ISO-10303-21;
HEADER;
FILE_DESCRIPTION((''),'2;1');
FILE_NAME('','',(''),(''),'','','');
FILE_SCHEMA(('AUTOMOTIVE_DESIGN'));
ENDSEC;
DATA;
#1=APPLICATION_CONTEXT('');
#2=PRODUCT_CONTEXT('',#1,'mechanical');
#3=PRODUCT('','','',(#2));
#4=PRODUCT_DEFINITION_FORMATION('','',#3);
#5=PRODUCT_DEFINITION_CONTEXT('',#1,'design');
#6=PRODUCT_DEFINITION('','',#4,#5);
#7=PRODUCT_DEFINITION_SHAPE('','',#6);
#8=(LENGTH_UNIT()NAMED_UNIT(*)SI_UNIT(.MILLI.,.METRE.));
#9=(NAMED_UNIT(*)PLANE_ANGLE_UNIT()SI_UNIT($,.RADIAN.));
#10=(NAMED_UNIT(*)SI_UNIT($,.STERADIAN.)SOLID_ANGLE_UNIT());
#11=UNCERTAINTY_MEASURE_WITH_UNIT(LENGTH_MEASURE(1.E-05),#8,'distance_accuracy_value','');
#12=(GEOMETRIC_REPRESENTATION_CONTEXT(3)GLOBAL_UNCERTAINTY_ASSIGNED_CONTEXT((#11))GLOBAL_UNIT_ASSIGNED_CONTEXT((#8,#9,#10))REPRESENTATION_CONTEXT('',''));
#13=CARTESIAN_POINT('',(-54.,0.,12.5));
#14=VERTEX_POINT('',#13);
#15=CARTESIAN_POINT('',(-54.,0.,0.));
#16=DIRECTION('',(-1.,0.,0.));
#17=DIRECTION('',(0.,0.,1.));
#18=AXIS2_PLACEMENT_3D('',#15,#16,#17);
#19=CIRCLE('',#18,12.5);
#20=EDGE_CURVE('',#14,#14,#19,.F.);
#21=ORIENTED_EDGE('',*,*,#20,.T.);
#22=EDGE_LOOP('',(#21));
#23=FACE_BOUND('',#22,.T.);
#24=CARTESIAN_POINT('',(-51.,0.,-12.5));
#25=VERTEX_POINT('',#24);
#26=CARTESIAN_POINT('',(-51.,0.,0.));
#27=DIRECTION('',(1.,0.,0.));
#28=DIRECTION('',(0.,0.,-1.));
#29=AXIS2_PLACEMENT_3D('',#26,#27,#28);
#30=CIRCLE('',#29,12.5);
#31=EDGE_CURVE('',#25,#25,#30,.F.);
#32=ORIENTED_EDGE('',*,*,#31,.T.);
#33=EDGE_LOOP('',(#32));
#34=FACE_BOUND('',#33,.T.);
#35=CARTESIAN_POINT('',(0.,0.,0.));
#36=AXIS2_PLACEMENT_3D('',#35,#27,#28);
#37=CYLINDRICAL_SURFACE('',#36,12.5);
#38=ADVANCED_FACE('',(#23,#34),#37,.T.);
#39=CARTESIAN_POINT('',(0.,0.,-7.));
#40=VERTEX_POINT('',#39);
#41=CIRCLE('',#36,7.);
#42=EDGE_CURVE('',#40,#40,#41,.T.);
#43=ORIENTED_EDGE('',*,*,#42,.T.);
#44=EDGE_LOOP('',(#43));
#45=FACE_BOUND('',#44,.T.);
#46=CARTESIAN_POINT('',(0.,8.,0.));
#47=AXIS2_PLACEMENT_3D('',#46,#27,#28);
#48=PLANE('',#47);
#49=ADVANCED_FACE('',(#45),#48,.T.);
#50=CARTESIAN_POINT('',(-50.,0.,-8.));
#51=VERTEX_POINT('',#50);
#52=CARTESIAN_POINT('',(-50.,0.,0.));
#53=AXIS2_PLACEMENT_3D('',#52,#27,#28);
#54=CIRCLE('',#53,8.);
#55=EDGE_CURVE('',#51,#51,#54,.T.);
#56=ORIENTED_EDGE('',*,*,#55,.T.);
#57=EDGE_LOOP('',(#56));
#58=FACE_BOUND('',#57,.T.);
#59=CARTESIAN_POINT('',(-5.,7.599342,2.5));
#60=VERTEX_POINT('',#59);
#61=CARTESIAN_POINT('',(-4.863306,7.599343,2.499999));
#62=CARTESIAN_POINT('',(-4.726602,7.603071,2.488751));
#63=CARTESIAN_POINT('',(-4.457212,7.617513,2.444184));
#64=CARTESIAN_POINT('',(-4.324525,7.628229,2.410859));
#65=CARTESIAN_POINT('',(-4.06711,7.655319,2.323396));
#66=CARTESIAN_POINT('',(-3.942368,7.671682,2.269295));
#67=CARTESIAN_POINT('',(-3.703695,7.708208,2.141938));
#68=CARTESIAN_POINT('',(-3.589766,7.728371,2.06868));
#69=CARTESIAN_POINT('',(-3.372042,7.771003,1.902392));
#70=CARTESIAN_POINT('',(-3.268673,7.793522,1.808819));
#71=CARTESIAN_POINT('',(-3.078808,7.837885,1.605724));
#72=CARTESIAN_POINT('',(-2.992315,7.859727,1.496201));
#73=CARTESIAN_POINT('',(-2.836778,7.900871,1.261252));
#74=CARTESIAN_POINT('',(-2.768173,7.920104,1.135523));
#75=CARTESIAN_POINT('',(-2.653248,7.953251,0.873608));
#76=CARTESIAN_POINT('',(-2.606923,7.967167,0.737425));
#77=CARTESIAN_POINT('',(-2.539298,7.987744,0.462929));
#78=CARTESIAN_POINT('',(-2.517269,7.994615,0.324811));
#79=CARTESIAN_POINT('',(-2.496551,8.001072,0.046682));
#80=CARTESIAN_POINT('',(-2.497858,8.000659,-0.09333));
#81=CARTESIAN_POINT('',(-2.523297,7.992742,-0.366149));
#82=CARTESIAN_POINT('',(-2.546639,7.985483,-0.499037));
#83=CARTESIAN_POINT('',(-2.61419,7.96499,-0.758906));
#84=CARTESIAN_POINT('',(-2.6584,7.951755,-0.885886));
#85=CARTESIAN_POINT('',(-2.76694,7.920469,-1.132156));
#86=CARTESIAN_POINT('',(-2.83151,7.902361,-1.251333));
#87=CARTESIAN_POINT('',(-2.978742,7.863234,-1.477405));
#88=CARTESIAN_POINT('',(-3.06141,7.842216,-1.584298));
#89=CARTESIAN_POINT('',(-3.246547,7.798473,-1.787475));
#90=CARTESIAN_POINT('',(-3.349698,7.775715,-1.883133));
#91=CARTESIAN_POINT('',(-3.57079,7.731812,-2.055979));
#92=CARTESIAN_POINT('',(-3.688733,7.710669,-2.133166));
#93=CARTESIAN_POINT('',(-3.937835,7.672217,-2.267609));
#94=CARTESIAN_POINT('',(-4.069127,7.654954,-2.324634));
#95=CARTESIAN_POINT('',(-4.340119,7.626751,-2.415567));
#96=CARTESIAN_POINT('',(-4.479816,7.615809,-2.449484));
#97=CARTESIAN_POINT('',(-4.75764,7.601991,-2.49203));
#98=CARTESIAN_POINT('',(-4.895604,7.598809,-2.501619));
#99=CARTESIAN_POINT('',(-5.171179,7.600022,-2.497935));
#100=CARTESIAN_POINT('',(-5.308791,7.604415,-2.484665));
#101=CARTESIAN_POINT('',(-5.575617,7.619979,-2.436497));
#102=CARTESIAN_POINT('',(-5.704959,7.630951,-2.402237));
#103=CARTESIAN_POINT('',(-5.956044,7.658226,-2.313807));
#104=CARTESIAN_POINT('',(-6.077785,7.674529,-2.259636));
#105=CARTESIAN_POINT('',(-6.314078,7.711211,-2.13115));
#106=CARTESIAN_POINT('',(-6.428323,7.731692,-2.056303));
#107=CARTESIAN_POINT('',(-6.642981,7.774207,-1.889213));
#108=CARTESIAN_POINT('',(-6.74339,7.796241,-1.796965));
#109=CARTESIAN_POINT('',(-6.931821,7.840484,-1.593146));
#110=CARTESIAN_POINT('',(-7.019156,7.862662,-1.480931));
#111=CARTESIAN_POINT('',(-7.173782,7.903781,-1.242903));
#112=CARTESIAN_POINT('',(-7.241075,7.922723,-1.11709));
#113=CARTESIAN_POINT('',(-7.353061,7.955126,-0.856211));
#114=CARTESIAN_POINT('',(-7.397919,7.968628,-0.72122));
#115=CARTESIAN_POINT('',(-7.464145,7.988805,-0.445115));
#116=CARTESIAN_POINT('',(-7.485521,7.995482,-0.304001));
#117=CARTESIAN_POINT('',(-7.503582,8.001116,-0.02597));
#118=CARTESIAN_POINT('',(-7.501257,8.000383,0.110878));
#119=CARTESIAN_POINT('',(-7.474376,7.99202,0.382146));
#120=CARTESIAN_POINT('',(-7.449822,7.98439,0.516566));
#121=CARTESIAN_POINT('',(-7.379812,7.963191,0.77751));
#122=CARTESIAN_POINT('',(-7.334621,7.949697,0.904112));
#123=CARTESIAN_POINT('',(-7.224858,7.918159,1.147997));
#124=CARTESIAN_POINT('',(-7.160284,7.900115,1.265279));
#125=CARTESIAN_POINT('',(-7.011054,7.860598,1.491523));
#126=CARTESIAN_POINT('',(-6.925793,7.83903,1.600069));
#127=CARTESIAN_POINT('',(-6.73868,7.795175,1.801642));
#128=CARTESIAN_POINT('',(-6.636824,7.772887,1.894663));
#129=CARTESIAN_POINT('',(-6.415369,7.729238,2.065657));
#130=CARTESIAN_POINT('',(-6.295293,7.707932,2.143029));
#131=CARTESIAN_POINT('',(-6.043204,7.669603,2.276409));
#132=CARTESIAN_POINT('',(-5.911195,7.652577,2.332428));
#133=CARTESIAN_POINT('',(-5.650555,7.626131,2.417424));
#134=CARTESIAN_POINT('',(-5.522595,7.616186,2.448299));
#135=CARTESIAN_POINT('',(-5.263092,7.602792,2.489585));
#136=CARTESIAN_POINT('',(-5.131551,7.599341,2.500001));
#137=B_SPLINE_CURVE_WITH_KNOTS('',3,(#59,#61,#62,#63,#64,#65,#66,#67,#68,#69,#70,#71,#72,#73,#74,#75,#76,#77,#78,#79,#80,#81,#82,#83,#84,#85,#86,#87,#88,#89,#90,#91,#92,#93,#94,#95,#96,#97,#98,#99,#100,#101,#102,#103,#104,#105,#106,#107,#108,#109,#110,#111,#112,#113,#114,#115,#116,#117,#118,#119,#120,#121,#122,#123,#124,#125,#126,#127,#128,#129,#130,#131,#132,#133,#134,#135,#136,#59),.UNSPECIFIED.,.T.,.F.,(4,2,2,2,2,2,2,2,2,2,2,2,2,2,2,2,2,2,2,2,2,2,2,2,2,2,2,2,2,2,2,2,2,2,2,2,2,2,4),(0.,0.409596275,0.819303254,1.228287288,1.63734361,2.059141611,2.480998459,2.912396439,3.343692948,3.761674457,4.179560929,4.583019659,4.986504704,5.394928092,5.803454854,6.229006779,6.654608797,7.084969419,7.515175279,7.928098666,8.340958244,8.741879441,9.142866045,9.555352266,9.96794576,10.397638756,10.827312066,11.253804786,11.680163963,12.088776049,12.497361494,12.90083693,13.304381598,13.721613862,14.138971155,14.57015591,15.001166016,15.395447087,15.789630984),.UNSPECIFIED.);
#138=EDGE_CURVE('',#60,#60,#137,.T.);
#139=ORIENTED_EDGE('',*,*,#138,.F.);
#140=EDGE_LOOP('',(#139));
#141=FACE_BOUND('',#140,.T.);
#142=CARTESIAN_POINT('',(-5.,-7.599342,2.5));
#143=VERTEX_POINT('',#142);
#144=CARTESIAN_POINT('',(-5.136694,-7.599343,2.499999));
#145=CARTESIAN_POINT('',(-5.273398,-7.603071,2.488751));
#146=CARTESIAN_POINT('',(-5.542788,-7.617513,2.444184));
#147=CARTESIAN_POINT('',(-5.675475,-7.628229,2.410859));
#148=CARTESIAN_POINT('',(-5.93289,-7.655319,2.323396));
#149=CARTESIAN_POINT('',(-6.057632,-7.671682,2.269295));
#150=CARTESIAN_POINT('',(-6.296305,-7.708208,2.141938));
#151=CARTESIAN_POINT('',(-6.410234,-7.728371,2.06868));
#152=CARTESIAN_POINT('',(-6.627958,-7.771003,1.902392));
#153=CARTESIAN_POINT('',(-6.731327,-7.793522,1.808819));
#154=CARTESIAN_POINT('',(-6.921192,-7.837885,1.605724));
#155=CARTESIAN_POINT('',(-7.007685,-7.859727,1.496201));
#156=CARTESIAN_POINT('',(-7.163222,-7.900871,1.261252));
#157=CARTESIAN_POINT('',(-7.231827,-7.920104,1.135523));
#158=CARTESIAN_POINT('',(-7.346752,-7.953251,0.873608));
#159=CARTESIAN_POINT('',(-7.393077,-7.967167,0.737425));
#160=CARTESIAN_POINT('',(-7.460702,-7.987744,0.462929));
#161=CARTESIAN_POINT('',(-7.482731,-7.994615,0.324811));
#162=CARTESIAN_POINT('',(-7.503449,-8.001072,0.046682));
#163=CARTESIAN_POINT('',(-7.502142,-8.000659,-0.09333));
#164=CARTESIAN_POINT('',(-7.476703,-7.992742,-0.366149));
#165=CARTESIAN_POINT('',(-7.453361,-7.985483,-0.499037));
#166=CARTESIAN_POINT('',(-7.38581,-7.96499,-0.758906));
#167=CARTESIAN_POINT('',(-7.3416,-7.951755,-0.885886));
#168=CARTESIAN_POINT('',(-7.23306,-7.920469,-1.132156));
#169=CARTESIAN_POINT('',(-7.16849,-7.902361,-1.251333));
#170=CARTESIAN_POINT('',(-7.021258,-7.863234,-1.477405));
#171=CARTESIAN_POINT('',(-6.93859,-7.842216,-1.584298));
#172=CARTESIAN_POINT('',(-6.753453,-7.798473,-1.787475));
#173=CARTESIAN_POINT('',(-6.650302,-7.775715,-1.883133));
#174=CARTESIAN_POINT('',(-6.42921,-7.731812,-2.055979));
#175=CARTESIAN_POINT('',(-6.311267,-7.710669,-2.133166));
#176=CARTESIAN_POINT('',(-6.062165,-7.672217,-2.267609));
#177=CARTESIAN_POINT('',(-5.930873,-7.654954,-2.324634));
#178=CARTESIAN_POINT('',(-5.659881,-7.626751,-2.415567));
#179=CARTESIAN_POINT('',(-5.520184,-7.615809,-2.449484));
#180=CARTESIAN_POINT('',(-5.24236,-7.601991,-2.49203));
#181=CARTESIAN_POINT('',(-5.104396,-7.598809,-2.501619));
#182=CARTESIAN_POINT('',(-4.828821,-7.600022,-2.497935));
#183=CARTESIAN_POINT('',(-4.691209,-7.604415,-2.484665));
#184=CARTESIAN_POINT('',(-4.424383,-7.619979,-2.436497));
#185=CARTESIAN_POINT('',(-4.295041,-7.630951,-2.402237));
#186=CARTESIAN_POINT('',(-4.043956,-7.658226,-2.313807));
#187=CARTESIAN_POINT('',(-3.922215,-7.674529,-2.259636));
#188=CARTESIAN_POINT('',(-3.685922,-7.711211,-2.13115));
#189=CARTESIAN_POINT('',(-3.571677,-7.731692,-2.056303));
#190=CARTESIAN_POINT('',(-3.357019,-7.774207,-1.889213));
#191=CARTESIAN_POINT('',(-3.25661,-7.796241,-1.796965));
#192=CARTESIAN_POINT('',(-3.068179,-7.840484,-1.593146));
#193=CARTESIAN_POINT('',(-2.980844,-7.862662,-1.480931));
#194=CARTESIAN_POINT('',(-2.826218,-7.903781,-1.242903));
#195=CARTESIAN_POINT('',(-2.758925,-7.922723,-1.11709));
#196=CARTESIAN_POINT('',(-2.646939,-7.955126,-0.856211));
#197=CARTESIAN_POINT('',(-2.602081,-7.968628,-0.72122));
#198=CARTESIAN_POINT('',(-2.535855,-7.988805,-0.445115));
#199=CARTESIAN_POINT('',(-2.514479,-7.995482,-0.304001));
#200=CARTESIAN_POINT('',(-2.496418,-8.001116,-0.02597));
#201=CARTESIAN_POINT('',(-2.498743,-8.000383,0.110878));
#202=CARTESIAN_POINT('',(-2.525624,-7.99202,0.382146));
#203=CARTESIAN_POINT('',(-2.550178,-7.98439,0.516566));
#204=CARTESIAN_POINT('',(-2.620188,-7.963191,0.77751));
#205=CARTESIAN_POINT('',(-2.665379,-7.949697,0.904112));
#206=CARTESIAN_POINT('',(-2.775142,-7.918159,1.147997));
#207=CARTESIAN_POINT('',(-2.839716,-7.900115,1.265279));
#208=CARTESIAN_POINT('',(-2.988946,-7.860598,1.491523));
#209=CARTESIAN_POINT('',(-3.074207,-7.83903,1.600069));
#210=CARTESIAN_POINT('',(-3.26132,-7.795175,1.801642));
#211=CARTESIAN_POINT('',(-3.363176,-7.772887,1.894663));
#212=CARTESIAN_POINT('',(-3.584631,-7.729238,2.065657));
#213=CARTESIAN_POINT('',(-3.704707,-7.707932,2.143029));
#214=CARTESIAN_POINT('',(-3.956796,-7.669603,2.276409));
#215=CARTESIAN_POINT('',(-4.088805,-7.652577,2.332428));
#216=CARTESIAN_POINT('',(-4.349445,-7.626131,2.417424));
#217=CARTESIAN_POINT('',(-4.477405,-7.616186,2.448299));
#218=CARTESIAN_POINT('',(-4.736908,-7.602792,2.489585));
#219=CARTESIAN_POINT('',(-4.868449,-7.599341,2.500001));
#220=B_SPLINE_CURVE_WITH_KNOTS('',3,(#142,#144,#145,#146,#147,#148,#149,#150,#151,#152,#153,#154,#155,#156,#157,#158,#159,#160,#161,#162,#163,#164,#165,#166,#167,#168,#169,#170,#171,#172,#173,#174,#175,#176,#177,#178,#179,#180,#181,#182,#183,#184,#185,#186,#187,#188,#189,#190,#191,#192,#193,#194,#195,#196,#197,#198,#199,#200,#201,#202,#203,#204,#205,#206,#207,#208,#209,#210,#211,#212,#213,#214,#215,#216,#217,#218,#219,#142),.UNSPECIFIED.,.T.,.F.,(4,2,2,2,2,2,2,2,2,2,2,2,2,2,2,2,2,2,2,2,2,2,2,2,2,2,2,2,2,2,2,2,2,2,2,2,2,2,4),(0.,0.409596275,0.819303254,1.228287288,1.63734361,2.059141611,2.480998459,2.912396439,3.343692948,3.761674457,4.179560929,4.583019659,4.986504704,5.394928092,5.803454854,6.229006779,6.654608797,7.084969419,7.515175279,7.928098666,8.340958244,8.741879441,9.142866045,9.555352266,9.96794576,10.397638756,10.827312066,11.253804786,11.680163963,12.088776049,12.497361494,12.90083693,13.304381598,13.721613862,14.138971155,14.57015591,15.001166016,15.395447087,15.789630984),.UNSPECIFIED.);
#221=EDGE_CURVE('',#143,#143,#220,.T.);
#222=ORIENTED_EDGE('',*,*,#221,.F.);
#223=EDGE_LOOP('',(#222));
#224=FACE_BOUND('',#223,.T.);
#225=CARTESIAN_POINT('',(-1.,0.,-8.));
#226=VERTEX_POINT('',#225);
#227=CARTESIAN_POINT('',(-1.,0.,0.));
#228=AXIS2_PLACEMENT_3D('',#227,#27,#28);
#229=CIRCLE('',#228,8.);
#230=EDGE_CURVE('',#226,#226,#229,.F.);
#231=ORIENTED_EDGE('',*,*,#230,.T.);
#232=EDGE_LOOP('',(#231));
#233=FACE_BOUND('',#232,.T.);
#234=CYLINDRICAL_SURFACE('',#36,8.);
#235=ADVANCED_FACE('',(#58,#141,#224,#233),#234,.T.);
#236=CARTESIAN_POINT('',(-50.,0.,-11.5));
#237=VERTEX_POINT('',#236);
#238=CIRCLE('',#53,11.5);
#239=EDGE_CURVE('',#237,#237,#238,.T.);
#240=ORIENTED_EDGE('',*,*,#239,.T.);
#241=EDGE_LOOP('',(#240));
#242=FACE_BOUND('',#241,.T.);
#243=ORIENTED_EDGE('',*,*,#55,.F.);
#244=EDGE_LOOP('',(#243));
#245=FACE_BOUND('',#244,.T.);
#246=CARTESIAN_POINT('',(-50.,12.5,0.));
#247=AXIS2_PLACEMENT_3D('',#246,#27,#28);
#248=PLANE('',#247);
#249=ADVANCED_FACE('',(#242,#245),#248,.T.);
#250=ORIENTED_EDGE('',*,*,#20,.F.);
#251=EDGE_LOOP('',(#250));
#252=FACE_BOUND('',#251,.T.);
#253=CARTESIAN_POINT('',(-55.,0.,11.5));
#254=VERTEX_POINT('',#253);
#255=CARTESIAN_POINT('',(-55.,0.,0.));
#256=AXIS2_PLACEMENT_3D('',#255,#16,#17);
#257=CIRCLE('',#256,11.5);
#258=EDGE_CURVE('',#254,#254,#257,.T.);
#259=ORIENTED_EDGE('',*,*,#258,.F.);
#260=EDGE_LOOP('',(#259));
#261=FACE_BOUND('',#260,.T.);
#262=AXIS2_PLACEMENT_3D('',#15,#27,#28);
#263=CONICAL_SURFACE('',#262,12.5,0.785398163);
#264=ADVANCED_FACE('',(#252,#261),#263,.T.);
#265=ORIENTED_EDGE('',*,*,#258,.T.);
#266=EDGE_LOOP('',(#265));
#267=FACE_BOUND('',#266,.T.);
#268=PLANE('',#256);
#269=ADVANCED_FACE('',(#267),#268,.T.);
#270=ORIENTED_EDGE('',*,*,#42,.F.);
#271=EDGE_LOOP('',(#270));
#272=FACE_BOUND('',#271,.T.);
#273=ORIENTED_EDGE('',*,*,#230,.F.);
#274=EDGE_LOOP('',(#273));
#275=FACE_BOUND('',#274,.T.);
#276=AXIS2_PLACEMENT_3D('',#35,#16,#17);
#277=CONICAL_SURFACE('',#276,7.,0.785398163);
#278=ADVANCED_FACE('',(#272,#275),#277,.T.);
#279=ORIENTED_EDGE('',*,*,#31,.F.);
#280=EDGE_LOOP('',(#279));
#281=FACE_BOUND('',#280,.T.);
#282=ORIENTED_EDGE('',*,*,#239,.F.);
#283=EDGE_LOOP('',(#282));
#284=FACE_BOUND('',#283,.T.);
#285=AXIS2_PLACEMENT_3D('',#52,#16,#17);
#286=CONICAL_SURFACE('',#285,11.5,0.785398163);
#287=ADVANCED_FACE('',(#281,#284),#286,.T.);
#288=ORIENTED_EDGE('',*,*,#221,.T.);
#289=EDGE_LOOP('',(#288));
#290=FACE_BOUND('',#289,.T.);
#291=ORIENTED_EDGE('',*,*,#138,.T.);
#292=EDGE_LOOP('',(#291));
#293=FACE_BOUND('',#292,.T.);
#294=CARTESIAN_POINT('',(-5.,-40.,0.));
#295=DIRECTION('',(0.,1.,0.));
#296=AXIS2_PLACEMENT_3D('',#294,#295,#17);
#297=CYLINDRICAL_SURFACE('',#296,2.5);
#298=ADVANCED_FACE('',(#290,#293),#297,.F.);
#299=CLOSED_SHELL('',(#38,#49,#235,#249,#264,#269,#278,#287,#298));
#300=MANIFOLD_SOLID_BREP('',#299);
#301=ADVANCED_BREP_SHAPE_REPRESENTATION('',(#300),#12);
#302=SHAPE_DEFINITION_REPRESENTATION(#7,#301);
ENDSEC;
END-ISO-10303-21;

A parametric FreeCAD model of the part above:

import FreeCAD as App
import Part
import Sketcher
from FreeCAD import Vector


def edges_at(feature, points):
    """Names of the edges that pass closest to the given points."""
    edges = feature.Shape.Edges
    near = lambda p: min(range(len(edges)), key=lambda i: edges[i].distToShape(Part.Vertex(*p))[0])
    return sorted({f"Edge{near(p) + 1}" for p in points})


def add_polygon(sketch, points):
    """Adds a closed chain of lines whose ends are joined by coincident constraints."""
    first, n = sketch.GeometryCount, len(points)
    for a, b in zip(points, points[1:] + points[:1]):
        sketch.addGeometry(Part.LineSegment(App.Vector(*a, 0), App.Vector(*b, 0)), False)
    for i in range(n):
        sketch.addConstraint(Sketcher.Constraint("Coincident", first + i, 2, first + (i + 1) % n, 1))

doc = App.newDocument("Part")
body = doc.addObject("PartDesign::Body", "Body")

# Sketch on XY plane
sketch1 = doc.addObject("Sketcher::SketchObject", "Sketch")
body.addObject(sketch1)
sketch1.AttachmentSupport = (doc.XY_Plane, [""])
sketch1.MapMode = "FlatFace"
add_polygon(sketch1, [(-55, 12.5), (-55, 0), (0, 0), (0, 8), (-50, 8), (-50, 12.5)])  # lines 0-5
sketch1.addConstraint([
    Sketcher.Constraint("Vertical", 0),
    Sketcher.Constraint("Horizontal", 1),
    Sketcher.Constraint("Vertical", 2),
    Sketcher.Constraint("Horizontal", 3),
    Sketcher.Constraint("Vertical", 4),
    Sketcher.Constraint("Horizontal", 5),
    Sketcher.Constraint("Coincident", 1, 2, -1, 1),
    Sketcher.Constraint("DistanceX", 1, 1, 1, 2, 55.0),
    Sketcher.Constraint("DistanceX", 3, 2, 3, 1, 50.0),
    Sketcher.Constraint("DistanceY", 2, 1, 2, 2, 8.0),
    Sketcher.Constraint("DistanceY", 0, 2, 0, 1, 12.5),
])
revolution = doc.addObject("PartDesign::Revolution", "Revolution")
body.addObject(revolution)
revolution.Profile = sketch1
revolution.ReferenceAxis = (sketch1, ["H_Axis"])
revolution.Angle = 360
doc.recompute()

chamfer = doc.addObject("PartDesign::Chamfer", "Chamfer")
body.addObject(chamfer)
chamfer.Base = (revolution, edges_at(revolution, [(-50, 0, 12.5), (-55, 0, 12.5)]))
chamfer.Size = 1
doc.recompute()

chamfer2 = doc.addObject("PartDesign::Chamfer", "Chamfer001")
body.addObject(chamfer2)
chamfer2.Base = (chamfer, edges_at(chamfer, [(0, 0, 8)]))
chamfer2.Size = 1

# Sketch on XZ plane
sketch2 = doc.addObject("Sketcher::SketchObject", "Sketch001")
body.addObject(sketch2)
sketch2.AttachmentSupport = (doc.XZ_Plane, [""])
sketch2.MapMode = "FlatFace"
sketch2.addGeometry(Part.Circle(Vector(-5, 0, 0), Vector(0, 0, 1), 2.5), False)
sketch2.addConstraint([
    Sketcher.Constraint("PointOnObject", 0, 3, -1),
    Sketcher.Constraint("Diameter", 0, 5.0),
    Sketcher.Constraint("DistanceX", 0, 3, -1, 1, 5.0),
])
pocket1 = doc.addObject("PartDesign::Pocket", "Pocket")
body.addObject(pocket1)
pocket1.Profile = sketch2
pocket1.Length = 80
pocket1.Midplane = True

doc.recompute()
